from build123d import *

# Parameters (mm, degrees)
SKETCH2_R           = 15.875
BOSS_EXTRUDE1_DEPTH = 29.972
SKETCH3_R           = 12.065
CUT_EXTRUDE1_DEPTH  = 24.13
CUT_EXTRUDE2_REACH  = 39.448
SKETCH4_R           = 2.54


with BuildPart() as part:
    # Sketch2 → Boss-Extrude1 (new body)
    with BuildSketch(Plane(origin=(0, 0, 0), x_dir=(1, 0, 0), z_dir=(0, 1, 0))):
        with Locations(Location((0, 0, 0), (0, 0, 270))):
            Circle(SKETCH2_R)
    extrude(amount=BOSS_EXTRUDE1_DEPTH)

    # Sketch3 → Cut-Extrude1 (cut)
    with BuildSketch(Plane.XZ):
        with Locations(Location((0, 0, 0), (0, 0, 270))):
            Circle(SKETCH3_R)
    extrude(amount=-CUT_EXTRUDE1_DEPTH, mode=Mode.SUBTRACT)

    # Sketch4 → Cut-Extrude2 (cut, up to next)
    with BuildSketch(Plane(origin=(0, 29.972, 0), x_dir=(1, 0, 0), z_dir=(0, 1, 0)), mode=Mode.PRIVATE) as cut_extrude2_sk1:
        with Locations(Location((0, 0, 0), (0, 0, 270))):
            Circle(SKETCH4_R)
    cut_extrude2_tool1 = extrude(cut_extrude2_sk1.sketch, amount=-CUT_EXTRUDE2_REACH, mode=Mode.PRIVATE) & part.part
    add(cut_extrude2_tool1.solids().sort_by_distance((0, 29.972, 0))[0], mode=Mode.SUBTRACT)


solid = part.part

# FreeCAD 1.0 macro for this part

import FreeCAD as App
import Part
import Sketcher

V = App.Vector
Q = App.Units.Quantity

doc = App.newDocument("Part")
body = doc.addObject("PartDesign::Body", "Body")

sketch1 = body.newObject("Sketcher::SketchObject", "Sketch")
sketch1.AttachmentSupport = (doc.getObject("XZ_Plane"), [""])
sketch1.MapMode = "FlatFace"
sketch1.addGeometry(Part.Circle(V(0, 0, 0), V(0, 0, 1), 16), False)
sketch1.addConstraint([
    Sketcher.Constraint("Coincident", 0, 3, -1, 1),
    Sketcher.Constraint("Diameter", 0, Q("1.25 in")),
])
pad1 = body.newObject("PartDesign::Pad", "Pad")
pad1.Profile = sketch1
pad1.Length = Q("1.18 in")
pad1.Reversed = True

sketch2 = body.newObject("Sketcher::SketchObject", "Sketch001")
sketch2.AttachmentSupport = (doc.getObject("XZ_Plane"), [""])
sketch2.MapMode = "FlatFace"
sketch2.addGeometry(Part.Circle(V(0, 0, 0), V(0, 0, 1), 12), False)
sketch2.addConstraint([
    Sketcher.Constraint("Coincident", 0, 3, -1, 1),
    Sketcher.Constraint("Diameter", 0, Q("0.95 in")),
])
pocket1 = body.newObject("PartDesign::Pocket", "Pocket")
pocket1.Profile = sketch2
pocket1.Length = Q("0.95 in")

sketch3 = body.newObject("Sketcher::SketchObject", "Sketch002")
sketch3.AttachmentSupport = (doc.getObject("XZ_Plane"), [""])
sketch3.MapMode = "FlatFace"
sketch3.AttachmentOffset = App.Placement(V(0, 0, -1.18 * 25.4), App.Rotation())
sketch3.addGeometry(Part.Circle(V(0, 0, 0), V(0, 0, 1), 2.5), False)
sketch3.addConstraint([
    Sketcher.Constraint("Coincident", 0, 3, -1, 1),
    Sketcher.Constraint("Diameter", 0, Q("0.2 in")),
])
pocket2 = body.newObject("PartDesign::Pocket", "Pocket001")
pocket2.Profile = sketch3
pocket2.Type = "UpToFirst"
pocket2.Reversed = True

doc.recompute()
